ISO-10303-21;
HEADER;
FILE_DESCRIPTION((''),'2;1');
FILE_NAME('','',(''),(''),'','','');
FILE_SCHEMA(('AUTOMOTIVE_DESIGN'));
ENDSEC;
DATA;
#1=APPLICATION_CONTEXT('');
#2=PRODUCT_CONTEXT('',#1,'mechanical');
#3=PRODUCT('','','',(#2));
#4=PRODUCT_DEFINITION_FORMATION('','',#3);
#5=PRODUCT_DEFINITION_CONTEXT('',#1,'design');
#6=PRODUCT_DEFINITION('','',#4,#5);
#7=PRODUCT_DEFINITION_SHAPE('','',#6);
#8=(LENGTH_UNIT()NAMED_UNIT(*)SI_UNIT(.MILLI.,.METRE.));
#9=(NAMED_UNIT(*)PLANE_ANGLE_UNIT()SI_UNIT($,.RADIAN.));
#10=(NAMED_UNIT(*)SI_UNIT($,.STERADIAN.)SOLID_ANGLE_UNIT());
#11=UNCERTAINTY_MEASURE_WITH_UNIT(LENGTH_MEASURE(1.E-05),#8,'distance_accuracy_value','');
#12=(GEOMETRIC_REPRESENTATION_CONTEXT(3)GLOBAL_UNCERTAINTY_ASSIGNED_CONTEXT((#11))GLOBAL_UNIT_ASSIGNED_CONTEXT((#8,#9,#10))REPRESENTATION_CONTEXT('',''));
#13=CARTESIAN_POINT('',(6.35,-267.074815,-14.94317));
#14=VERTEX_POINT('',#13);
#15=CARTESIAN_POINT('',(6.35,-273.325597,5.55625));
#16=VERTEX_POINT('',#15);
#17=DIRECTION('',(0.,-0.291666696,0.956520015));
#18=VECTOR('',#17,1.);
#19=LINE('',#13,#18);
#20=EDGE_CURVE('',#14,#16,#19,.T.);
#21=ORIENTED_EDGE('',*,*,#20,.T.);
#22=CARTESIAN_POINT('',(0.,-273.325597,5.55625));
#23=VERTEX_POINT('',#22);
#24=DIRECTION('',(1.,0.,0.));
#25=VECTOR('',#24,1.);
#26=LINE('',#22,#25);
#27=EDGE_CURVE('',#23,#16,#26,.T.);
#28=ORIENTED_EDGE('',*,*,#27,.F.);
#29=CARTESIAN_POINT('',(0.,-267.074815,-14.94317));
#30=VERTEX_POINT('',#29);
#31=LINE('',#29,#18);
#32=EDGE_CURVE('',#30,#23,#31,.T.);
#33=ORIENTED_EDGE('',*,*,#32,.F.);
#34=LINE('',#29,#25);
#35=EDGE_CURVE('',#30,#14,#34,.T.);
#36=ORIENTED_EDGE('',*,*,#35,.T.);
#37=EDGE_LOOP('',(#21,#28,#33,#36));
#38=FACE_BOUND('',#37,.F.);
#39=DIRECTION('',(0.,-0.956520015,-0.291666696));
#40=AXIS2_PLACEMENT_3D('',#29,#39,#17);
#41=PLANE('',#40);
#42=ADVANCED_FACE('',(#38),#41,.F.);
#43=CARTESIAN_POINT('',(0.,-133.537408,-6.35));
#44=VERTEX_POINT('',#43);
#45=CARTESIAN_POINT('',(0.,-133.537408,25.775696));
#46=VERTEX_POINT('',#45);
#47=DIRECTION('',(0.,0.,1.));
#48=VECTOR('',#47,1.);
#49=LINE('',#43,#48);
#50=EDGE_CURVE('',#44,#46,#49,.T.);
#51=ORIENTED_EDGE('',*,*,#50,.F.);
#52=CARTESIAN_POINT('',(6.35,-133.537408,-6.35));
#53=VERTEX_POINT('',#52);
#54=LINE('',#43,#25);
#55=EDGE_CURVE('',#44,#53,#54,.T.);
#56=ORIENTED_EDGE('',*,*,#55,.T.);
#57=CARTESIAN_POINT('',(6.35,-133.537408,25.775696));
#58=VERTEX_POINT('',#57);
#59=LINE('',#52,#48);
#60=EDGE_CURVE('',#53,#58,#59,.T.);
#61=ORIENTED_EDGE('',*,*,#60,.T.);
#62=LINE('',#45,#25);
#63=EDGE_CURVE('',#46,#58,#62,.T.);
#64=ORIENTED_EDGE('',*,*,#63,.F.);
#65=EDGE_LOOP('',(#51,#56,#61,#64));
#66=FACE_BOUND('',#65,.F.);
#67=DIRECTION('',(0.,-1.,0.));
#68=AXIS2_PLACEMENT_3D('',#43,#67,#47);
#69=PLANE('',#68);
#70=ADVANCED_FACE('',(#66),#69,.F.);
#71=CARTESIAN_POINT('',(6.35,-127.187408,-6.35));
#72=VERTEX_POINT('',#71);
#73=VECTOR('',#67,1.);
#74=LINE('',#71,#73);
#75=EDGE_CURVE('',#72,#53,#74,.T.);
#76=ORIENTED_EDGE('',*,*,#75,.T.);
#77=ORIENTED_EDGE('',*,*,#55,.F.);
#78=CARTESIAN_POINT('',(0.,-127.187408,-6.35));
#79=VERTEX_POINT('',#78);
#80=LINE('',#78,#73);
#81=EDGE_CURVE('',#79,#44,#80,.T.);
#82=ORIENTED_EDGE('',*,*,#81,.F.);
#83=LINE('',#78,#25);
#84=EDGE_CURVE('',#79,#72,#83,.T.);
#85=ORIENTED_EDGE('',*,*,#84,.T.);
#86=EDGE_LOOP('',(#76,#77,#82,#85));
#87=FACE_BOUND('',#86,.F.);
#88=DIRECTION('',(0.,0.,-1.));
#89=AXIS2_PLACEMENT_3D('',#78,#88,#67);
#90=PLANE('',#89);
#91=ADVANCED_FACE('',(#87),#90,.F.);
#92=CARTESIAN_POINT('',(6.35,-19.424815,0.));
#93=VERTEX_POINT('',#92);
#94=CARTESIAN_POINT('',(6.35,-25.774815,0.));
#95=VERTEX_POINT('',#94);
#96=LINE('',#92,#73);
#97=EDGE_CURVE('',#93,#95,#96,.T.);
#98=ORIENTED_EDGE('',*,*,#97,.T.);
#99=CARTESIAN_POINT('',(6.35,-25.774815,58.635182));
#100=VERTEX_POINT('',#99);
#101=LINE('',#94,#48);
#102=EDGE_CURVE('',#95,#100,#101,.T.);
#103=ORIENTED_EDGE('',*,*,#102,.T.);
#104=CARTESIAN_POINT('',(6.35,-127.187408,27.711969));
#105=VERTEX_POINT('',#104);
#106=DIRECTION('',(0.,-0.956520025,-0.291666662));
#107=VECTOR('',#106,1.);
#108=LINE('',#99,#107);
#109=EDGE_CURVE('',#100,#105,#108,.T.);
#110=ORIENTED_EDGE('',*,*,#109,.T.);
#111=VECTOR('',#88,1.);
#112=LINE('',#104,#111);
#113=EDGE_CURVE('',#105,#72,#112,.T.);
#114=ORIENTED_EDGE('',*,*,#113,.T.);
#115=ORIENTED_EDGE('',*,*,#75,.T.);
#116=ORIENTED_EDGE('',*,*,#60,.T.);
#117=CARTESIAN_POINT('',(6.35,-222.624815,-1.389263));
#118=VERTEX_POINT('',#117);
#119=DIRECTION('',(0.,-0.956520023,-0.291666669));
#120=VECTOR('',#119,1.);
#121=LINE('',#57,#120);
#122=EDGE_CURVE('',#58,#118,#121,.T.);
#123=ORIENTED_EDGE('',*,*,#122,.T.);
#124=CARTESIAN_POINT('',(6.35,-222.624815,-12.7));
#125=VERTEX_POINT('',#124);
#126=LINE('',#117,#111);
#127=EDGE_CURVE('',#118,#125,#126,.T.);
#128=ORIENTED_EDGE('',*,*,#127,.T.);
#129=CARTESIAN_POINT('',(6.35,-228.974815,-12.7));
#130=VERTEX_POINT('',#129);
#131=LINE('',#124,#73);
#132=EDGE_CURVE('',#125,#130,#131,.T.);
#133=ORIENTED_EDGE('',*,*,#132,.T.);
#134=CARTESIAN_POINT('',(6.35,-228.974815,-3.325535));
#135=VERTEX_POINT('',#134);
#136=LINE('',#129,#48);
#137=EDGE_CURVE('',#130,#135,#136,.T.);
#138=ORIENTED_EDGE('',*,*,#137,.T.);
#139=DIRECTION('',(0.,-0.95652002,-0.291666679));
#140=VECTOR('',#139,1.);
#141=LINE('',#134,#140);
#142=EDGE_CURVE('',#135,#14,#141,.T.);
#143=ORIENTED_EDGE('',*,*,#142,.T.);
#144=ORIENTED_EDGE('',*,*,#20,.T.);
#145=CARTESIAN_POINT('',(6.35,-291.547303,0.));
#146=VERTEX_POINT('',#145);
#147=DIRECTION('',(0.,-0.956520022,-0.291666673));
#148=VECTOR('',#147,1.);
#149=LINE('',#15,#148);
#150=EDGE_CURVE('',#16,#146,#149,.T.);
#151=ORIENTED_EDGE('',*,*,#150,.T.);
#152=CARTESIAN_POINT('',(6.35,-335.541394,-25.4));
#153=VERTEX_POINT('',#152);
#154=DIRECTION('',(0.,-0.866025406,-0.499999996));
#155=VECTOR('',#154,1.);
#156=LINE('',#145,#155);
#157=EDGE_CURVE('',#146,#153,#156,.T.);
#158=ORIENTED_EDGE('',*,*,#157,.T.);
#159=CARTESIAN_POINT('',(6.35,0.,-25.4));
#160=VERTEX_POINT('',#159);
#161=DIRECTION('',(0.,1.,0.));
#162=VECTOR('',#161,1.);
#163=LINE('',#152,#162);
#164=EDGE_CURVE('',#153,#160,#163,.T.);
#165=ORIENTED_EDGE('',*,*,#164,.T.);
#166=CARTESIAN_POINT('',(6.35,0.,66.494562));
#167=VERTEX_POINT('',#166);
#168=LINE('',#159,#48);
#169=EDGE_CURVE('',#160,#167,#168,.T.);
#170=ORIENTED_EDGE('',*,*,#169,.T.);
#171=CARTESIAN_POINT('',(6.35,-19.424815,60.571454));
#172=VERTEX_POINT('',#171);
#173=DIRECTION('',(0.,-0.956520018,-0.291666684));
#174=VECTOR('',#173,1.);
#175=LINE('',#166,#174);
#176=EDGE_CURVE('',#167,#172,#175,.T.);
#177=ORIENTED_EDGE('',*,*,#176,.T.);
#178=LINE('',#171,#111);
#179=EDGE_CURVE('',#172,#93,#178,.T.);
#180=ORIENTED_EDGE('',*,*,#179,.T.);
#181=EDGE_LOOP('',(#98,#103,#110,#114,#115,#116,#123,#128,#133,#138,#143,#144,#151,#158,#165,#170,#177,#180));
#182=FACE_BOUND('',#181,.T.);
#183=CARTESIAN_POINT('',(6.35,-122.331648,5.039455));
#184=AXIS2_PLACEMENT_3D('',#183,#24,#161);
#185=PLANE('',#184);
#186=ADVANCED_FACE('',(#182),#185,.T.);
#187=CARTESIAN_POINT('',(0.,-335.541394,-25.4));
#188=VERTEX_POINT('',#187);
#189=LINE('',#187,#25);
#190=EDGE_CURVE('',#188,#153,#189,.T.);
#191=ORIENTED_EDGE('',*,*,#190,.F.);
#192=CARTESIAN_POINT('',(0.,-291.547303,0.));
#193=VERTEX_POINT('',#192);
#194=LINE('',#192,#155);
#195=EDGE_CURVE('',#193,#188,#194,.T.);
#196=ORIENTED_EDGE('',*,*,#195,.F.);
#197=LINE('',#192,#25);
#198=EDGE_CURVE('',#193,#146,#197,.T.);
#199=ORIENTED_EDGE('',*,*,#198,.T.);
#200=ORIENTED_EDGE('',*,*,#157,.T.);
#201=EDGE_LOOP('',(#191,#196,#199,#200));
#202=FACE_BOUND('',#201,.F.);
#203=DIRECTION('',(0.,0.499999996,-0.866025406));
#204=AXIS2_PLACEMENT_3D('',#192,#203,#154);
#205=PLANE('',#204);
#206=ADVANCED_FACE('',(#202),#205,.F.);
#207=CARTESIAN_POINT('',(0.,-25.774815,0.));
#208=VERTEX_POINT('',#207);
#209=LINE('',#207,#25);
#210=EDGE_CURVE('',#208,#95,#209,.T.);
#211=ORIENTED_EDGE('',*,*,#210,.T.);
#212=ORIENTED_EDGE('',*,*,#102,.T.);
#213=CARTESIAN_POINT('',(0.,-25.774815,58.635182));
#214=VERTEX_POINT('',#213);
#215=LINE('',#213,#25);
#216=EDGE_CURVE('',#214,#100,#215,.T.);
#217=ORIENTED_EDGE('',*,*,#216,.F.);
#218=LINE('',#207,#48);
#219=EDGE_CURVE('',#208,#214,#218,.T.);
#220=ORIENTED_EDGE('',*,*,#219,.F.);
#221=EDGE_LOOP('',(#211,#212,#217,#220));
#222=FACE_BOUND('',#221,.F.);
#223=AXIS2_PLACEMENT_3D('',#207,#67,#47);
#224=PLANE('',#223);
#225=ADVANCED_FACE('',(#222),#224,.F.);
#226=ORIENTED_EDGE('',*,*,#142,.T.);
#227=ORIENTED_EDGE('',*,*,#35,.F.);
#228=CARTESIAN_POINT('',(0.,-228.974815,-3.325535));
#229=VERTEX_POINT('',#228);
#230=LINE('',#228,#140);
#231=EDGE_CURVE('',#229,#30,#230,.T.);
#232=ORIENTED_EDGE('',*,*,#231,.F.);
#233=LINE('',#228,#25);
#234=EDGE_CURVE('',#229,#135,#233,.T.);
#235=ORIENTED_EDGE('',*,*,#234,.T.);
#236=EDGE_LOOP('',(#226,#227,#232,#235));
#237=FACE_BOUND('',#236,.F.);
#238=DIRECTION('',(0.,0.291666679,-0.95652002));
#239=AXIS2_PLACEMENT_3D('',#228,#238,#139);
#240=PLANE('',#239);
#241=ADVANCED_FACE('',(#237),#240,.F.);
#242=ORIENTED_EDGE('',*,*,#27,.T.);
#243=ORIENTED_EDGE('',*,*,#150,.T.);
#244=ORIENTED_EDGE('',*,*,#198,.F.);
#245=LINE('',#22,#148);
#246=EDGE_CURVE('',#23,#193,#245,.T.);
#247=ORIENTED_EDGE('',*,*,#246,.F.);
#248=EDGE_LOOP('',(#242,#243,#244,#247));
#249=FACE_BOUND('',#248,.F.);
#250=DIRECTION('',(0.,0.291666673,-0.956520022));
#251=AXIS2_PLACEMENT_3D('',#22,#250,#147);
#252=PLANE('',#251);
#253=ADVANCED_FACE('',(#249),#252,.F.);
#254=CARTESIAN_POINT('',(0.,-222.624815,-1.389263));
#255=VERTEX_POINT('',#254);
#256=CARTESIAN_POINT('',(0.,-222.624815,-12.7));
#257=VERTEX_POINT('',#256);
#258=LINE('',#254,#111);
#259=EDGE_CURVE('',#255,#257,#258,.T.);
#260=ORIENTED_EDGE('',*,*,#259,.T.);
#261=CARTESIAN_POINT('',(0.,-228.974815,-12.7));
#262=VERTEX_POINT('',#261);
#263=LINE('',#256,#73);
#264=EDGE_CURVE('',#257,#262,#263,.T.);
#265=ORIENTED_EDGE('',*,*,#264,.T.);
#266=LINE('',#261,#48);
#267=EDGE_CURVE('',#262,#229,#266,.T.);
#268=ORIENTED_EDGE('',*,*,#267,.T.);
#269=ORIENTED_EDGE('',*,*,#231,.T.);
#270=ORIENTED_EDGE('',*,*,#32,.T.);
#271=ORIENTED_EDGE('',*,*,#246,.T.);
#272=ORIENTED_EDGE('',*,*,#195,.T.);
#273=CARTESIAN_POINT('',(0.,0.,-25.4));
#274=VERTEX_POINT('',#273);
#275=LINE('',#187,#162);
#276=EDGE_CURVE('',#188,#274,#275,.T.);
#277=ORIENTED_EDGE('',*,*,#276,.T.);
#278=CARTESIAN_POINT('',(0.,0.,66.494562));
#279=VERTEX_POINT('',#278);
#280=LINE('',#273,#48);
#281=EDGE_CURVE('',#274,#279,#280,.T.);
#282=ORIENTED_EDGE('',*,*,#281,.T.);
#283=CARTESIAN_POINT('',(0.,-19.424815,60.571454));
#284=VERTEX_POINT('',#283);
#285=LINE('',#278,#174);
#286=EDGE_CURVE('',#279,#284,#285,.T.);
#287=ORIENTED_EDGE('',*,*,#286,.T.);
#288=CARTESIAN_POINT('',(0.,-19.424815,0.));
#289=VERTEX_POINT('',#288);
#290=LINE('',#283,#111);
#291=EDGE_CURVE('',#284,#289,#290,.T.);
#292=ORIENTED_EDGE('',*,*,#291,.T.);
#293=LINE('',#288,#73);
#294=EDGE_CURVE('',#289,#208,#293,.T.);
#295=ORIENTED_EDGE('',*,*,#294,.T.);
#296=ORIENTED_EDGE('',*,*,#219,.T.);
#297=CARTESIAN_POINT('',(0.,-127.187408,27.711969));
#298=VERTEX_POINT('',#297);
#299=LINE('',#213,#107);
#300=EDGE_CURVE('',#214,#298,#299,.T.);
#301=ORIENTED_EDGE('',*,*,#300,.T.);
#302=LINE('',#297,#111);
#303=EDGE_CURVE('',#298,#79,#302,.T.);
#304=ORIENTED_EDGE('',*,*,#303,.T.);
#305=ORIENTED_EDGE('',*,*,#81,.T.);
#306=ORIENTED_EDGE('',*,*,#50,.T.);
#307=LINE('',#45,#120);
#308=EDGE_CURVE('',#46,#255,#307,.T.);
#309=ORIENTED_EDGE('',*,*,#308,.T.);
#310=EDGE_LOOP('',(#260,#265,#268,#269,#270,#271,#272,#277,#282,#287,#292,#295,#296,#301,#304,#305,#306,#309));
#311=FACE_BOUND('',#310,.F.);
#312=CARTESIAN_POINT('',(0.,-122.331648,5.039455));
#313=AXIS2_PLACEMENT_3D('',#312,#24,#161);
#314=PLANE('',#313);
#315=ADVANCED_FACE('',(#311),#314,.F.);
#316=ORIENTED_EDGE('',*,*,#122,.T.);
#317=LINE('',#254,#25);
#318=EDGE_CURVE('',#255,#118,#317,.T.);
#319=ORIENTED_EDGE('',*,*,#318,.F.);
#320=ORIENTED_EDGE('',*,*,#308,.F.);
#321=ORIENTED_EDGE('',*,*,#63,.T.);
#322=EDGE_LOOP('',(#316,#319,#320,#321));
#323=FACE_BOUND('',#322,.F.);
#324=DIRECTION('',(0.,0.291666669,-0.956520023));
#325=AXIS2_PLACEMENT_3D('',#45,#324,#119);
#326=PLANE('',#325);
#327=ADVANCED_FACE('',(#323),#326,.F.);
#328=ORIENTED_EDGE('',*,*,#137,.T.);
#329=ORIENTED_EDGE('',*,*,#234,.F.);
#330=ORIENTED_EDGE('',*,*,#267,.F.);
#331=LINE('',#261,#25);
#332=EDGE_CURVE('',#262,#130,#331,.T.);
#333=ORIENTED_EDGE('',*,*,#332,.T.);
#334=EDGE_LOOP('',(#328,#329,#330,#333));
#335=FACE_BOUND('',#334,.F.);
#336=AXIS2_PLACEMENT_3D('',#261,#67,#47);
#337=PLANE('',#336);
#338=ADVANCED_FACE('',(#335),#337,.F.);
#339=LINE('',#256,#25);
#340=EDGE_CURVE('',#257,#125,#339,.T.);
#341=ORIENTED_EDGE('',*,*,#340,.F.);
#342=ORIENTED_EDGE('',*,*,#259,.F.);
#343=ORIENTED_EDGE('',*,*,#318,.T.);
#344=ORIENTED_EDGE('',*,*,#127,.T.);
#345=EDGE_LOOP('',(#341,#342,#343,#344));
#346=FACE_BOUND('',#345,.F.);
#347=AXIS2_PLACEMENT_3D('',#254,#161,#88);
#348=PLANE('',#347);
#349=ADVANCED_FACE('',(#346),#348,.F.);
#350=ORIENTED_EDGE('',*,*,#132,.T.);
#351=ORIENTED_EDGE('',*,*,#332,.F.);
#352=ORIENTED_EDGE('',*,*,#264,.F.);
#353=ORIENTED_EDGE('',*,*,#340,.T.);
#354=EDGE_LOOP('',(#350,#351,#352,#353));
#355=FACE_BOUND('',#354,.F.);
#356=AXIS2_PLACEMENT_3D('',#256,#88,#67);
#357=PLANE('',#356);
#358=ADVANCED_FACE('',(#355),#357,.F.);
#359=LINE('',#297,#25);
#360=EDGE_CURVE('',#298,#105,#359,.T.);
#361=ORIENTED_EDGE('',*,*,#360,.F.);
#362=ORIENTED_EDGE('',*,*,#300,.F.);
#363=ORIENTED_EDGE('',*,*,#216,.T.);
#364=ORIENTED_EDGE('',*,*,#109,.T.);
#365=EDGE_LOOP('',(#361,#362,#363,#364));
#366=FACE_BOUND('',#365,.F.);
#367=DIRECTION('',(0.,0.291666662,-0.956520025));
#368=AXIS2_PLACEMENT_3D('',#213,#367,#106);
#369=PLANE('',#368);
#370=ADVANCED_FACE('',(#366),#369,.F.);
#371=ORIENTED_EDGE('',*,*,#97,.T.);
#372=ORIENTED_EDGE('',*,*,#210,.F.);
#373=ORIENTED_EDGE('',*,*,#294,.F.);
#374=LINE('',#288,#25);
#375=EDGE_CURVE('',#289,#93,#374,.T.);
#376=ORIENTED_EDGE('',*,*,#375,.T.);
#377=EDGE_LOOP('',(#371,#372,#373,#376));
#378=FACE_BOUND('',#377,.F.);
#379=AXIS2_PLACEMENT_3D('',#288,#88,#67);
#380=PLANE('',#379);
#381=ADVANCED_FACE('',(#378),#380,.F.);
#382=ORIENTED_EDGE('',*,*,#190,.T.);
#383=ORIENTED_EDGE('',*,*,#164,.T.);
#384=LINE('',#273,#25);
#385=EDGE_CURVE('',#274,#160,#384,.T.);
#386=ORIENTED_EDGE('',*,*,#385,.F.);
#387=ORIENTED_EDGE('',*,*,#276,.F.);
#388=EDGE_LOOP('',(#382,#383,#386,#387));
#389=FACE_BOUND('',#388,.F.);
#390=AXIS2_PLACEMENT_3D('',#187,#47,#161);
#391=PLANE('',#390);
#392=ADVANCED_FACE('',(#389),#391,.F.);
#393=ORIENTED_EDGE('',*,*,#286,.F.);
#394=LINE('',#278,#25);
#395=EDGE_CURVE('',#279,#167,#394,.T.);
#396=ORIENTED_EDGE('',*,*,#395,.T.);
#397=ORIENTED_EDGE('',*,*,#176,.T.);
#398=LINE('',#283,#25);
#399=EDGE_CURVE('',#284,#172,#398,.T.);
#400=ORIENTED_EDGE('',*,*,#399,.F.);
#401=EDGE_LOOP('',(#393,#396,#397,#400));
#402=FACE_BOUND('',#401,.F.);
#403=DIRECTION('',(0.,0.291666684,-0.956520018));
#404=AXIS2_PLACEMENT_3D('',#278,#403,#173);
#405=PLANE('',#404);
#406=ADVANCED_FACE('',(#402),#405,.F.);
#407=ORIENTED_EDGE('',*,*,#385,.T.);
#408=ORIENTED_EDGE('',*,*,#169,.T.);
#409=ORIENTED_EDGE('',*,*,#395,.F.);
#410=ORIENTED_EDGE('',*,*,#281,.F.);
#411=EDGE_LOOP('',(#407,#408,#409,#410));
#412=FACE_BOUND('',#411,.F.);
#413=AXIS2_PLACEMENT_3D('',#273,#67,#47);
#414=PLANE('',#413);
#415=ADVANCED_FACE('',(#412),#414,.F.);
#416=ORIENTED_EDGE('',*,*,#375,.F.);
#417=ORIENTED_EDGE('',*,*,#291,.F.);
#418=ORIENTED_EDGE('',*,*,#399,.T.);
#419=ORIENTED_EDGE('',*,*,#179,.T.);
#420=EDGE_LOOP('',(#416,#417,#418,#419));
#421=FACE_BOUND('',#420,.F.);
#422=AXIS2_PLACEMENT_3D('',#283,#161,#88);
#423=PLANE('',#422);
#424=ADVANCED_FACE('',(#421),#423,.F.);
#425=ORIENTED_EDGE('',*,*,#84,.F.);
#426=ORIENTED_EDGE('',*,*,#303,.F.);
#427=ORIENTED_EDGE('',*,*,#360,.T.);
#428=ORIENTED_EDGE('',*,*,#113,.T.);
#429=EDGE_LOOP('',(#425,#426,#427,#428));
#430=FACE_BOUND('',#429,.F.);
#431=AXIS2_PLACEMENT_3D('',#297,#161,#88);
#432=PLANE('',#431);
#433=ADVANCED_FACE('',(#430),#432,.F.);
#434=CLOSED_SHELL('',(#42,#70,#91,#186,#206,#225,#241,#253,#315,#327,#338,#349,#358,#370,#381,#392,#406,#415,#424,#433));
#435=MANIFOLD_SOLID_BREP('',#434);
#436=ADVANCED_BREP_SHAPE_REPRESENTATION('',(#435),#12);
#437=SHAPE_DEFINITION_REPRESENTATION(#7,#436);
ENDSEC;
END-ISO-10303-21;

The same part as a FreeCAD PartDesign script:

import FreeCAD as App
import Part
import Sketcher
from FreeCAD import Vector
Q = App.Units.Quantity


def add_polygon(sketch, points):
    """Adds a closed chain of lines whose ends are joined by coincident constraints."""
    first, n = sketch.GeometryCount, len(points)
    for a, b in zip(points, points[1:] + points[:1]):
        sketch.addGeometry(Part.LineSegment(App.Vector(*a, 0), App.Vector(*b, 0)), False)
    for i in range(n):
        sketch.addConstraint(Sketcher.Constraint("Coincident", first + i, 2, first + (i + 1) % n, 1))

doc = App.newDocument("Part")
body = doc.addObject("PartDesign::Body", "Body")

# Sketch on YZ plane
sketch1 = body.newObject("Sketcher::SketchObject", "Sketch")
sketch1.AttachmentSupport = (doc.getObject("YZ_Plane"), [""])
sketch1.MapMode = "FlatFace"
add_polygon(sketch1, [(0, -25), (0, 66), (-19, 61), (-19, 0), (-26, 0), (-26, 59), (-127, 28), (-127, -6), (-134, -6), (-134, 26), (-223, -1), (-223, -13), (-229, -13), (-229, -3), (-267, -15), (-273, 6), (-292, 0), (-336, -25)])  # lines 0-17
sketch1.addConstraint([
    Sketcher.Constraint("Vertical", 0),
    Sketcher.Constraint("Vertical", 2),
    Sketcher.Constraint("Horizontal", 3),
    Sketcher.Constraint("Vertical", 4),
    Sketcher.Constraint("Vertical", 6),
    Sketcher.Constraint("Horizontal", 7),
    Sketcher.Constraint("Vertical", 8),
    Sketcher.Constraint("Vertical", 10),
    Sketcher.Constraint("Horizontal", 11),
    Sketcher.Constraint("Vertical", 12),
    Sketcher.Constraint("Horizontal", 17),
    Sketcher.Constraint("PointOnObject", 0, 2, -2),
    Sketcher.Constraint("PointOnObject", 2, 2, -1),
    Sketcher.Constraint("PointOnObject", 15, 2, -1),
    Sketcher.Constraint("Parallel", 1, 5),
    Sketcher.Constraint("Parallel", 5, 9),
    Sketcher.Constraint("Parallel", 9, 13),
    Sketcher.Constraint("Perpendicular", 13, 14),
    Sketcher.Constraint("Perpendicular", 14, 15),
    Sketcher.Constraint("Equal", 3, 7),
    Sketcher.Constraint("Equal", 7, 11),
    Sketcher.Constraint("Distance", 16, Q("2 in")),
    Sketcher.Constraint("DistanceY", 16, 2, -1, 1, Q("1 in")),
    Sketcher.Constraint("DistanceX", 3, 2, 3, 1, Q("0.25 in")),
    Sketcher.Constraint("DistanceY", 10, 2, -1, 1, Q("0.5 in")),
    Sketcher.Constraint("DistanceX", 13, 2, 11, 2, Q("1.5 in")),
    Sketcher.Constraint("Distance", 15, Q("0.75 in")),
    Sketcher.Constraint("DistanceY", 6, 2, -1, 1, Q("0.25 in")),
    Sketcher.Constraint("DistanceX", 9, 2, 3, 2, Q("7.75 in")),
    Sketcher.Constraint("Distance", 14, Q("0.84375 in")),
    Sketcher.Constraint("DistanceY", -1, 1, 14, 2, Q("0.21875 in")),
    Sketcher.Constraint("Distance", 9, 93.137002),
    Sketcher.Constraint("DistanceY", 6, 2, 6, 1, 34.061969),
    Sketcher.Constraint("DistanceX", 17, 1, 17, 2, 335.541394),
    Sketcher.Constraint("DistanceY", 0, 1, 0, 2, 91.894562),
    Sketcher.Constraint("DistanceY", 8, 1, 8, 2, 32.125696),
])
pad1 = body.newObject("PartDesign::Pad", "Pad")
pad1.Profile = sketch1
pad1.Length = Q("0.25 in")

doc.recompute()
